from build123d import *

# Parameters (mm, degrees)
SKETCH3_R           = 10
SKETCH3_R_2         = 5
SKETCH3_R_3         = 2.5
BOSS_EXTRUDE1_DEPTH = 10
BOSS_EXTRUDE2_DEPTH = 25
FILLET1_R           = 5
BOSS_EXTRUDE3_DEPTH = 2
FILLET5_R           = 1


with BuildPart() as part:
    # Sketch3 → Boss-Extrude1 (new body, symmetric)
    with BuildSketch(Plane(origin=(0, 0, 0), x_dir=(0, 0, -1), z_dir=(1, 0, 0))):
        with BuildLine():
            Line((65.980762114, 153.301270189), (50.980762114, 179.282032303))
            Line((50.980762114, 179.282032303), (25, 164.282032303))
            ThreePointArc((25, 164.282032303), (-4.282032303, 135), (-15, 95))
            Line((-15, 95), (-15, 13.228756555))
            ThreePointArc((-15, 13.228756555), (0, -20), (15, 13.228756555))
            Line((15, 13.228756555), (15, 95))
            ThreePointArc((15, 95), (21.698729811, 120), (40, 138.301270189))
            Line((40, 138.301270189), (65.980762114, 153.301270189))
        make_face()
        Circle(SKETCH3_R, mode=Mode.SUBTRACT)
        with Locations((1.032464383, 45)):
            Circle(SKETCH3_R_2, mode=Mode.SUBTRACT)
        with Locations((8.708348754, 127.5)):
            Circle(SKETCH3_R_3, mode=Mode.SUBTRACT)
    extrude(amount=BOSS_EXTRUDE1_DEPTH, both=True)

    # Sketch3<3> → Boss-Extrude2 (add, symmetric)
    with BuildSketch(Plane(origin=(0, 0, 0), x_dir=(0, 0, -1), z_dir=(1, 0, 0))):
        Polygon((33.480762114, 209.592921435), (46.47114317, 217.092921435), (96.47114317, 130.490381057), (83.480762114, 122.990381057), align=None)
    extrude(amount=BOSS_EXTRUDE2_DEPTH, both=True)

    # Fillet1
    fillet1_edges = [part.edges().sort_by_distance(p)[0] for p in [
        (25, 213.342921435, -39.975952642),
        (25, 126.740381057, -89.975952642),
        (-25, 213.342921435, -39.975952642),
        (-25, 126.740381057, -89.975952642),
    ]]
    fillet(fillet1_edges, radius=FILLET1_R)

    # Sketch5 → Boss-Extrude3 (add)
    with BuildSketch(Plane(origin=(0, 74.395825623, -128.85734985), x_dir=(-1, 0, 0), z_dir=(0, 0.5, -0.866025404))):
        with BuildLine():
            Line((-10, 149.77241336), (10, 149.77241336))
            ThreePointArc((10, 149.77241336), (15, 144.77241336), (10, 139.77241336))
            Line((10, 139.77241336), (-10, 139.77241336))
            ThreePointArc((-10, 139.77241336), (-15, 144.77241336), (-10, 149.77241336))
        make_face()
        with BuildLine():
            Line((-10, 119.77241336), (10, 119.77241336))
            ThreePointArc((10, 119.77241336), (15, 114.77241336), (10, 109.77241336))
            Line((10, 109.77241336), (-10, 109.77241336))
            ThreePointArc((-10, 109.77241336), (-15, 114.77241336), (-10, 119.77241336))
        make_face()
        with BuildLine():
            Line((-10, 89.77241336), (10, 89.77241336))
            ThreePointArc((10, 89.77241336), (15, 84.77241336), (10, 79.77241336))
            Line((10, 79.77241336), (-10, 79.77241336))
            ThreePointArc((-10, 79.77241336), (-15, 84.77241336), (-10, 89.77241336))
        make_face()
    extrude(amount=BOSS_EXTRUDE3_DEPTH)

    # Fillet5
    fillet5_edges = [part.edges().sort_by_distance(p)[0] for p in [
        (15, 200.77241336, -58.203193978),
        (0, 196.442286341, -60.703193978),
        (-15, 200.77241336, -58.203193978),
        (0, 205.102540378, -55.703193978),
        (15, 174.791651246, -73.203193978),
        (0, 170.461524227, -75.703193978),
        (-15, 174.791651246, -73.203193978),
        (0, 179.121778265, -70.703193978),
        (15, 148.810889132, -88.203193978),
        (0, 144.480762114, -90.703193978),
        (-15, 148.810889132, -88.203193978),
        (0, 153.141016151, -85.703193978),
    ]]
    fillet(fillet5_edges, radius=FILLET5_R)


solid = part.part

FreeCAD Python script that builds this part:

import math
import FreeCAD as App
import Part
import Sketcher
Q = App.Units.Quantity


def edges_at(feature, points):
    """Names of the edges that pass closest to the given points."""
    edges = feature.Shape.Edges
    near = lambda p: min(range(len(edges)), key=lambda i: edges[i].distToShape(Part.Vertex(*p))[0])
    return sorted({f"Edge{near(p) + 1}" for p in points})

doc = App.newDocument("Part")
params = doc.addObject("Spreadsheet::Sheet", "Params")
for row, (alias, value) in enumerate([
    ("sketch1_diameter", "20 mm"),
    ("sketch1_diameter2", "10 mm"),
    ("sketch1_diameter3", "5 mm"),
    ("sketch1_radius", "80 mm"),
    ("sketch1_radius2", "20 mm"),
    ("pad1_length", "20 mm"),
    ("sketch2_length", "15 mm"),
    ("sketch2_length2", "100 mm"),
    ("pad2_length", "50 mm"),
    ("fillet_radius", "5 mm"),
    ("sketch3_radius", "5 mm"),
    ("sketch3_width", "20 mm"),
    ("pad3_length", "2 mm"),
    ("fillet2_radius", "1 mm"),
], start=1):
    params.set(f"A{row}", alias)
    params.set(f"B{row}", "=" + value)
    params.setAlias(f"B{row}", alias)

body = doc.addObject("PartDesign::Body", "Body")

sketch1 = body.newObject("Sketcher::SketchObject", "Sketch")
sketch1.AttachmentSupport = (doc.getObject("YZ_Plane"), [""])
sketch1.MapMode = "FlatFace"
sketch1.addGeometry(Part.LineSegment(App.Vector(153.3, -66, 0), App.Vector(179.3, -51, 0)), False)
sketch1.addGeometry(Part.LineSegment(App.Vector(179.3, -51, 0), App.Vector(164.3, -25, 0)), False)
sketch1.addGeometry(Part.ArcOfCircle(Part.Circle(App.Vector(95, -65, 0), App.Vector(0, 0, 1), 80), math.radians(30), math.radians(90)), False)
sketch1.addGeometry(Part.LineSegment(App.Vector(95, 15, 0), App.Vector(13.2, 15, 0)), False)
sketch1.addGeometry(Part.ArcOfCircle(Part.Circle(App.Vector(0, 0, 0), App.Vector(0, 0, 1), 20), math.radians(49), math.radians(311)), False)
sketch1.addGeometry(Part.LineSegment(App.Vector(13.2, -15, 0), App.Vector(95, -15, 0)), False)
sketch1.addGeometry(Part.ArcOfCircle(Part.Circle(App.Vector(95, -65, 0), App.Vector(0, 0, 1), 50), math.radians(30), math.radians(90)), False)
sketch1.addGeometry(Part.LineSegment(App.Vector(138.3, -40, 0), App.Vector(153.3, -66, 0)), False)
sketch1.addGeometry(Part.Circle(App.Vector(0, 0, 0), App.Vector(0, 0, 1), 10), False)
sketch1.addGeometry(Part.Circle(App.Vector(45, -1, 0), App.Vector(0, 0, 1), 5), False)
sketch1.addGeometry(Part.Circle(App.Vector(127.5, -8.7, 0), App.Vector(0, 0, 1), 2.5), False)
sketch1.addConstraint(Sketcher.Constraint("Coincident", 0, 2, 1, 1))
sketch1.addConstraint(Sketcher.Constraint("Tangent", 1, 2, 2, 1))
sketch1.addConstraint(Sketcher.Constraint("Tangent", 2, 2, 3, 1))
sketch1.addConstraint(Sketcher.Constraint("Coincident", 3, 2, 4, 1))
sketch1.addConstraint(Sketcher.Constraint("Coincident", 4, 2, 5, 1))
sketch1.addConstraint(Sketcher.Constraint("Tangent", 5, 2, 6, 2))
sketch1.addConstraint(Sketcher.Constraint("Tangent", 6, 1, 7, 1))
sketch1.addConstraint(Sketcher.Constraint("Coincident", 7, 2, 0, 1))
sketch1.addConstraint(Sketcher.Constraint("Horizontal", 3))
sketch1.addConstraint(Sketcher.Constraint("Horizontal", 5))
sketch1.addConstraint(Sketcher.Constraint("Coincident", 4, 3, -1, 1))
sketch1.addConstraint(Sketcher.Constraint("Coincident", 8, 3, -1, 1))
sketch1.addConstraint(Sketcher.Constraint("Coincident", 6, 3, 2, 3))
sketch1.addConstraint(Sketcher.Constraint("Perpendicular", 0, 1))
sketch1.addConstraint(Sketcher.Constraint("Parallel", 1, 7))
sketch1.addConstraint(Sketcher.Constraint("Vertical", 3, 2, 4, 2))
sketch1.addConstraint(Sketcher.Constraint("Equal", 0, 1))
sketch1.addConstraint(Sketcher.Constraint("Diameter", 8, 20.0))
sketch1.addConstraint(Sketcher.Constraint("Diameter", 9, 10.0))
sketch1.addConstraint(Sketcher.Constraint("Diameter", 10, 5.0))
sketch1.addConstraint(Sketcher.Constraint("Radius", 2, 80.0))
sketch1.addConstraint(Sketcher.Constraint("Radius", 4, 20.0))
sketch1.addConstraint(Sketcher.Constraint("Radius", 6, 50.0))
sketch1.addConstraint(Sketcher.Constraint("Angle", 0, Q("30 deg")))
sketch1.addConstraint(Sketcher.Constraint("DistanceX", -1, 1, 2, 3, 95.0))
sketch1.addConstraint(Sketcher.Constraint("DistanceX", -1, 1, 9, 3, 45.0))
sketch1.addConstraint(Sketcher.Constraint("DistanceX", -1, 1, 10, 3, 127.5))
sketch1.addConstraint(Sketcher.Constraint("DistanceY", 10, 3, -1, 1, 8.708349))
sketch1.addConstraint(Sketcher.Constraint("DistanceY", 9, 3, -1, 1, 1.032464))
sketch1.setExpression("Constraints[17]", "Params.sketch1_diameter")
sketch1.setExpression("Constraints[18]", "Params.sketch1_diameter2")
sketch1.setExpression("Constraints[19]", "Params.sketch1_diameter3")
sketch1.setExpression("Constraints[20]", "Params.sketch1_radius")
sketch1.setExpression("Constraints[21]", "Params.sketch1_radius2")
pad1 = body.newObject("PartDesign::Pad", "Pad")
pad1.Profile = sketch1
pad1.setExpression("Length", "Params.pad1_length")
pad1.Midplane = True

sketch2 = body.newObject("Sketcher::SketchObject", "Sketch001")
sketch2.AttachmentSupport = (doc.getObject("YZ_Plane"), [""])
sketch2.MapMode = "FlatFace"
sketch2.addGeometry(Part.LineSegment(App.Vector(217, -46, 0), App.Vector(210, -33, 0)), False)
sketch2.addGeometry(Part.LineSegment(App.Vector(210, -33, 0), App.Vector(123, -83, 0)), False)
sketch2.addGeometry(Part.LineSegment(App.Vector(123, -83, 0), App.Vector(130, -96, 0)), False)
sketch2.addGeometry(Part.LineSegment(App.Vector(130, -96, 0), App.Vector(217, -46, 0)), False)
sketch2.addConstraint(Sketcher.Constraint("Coincident", 0, 2, 1, 1))
sketch2.addConstraint(Sketcher.Constraint("Coincident", 1, 2, 2, 1))
sketch2.addConstraint(Sketcher.Constraint("Coincident", 2, 2, 3, 1))
sketch2.addConstraint(Sketcher.Constraint("Coincident", 3, 2, 0, 1))
sketch2.addConstraint(Sketcher.Constraint("Perpendicular", 0, 1))
sketch2.addConstraint(Sketcher.Constraint("Perpendicular", 1, 2))
sketch2.addConstraint(Sketcher.Constraint("Perpendicular", 2, 3))
sketch2.addConstraint(Sketcher.Constraint("Angle", 0, Q("120 deg")))
sketch2.addConstraint(Sketcher.Constraint("Distance", 0, 15.0))
sketch2.addConstraint(Sketcher.Constraint("Distance", 1, 100.0))
sketch2.addConstraint(Sketcher.Constraint("DistanceX", -1, 1, 0, 2, 209.592921))
sketch2.addConstraint(Sketcher.Constraint("DistanceY", 0, 2, -1, 1, 33.480762))
sketch2.setExpression("Constraints[8]", "Params.sketch2_length")
sketch2.setExpression("Constraints[9]", "Params.sketch2_length2")
pad2 = body.newObject("PartDesign::Pad", "Pad001")
pad2.Profile = sketch2
pad2.setExpression("Length", "Params.pad2_length")
pad2.Midplane = True
doc.recompute()

fillet = body.newObject("PartDesign::Fillet", "Fillet")
fillet.Base = (pad2, edges_at(pad2, [
    (25, 213.343, -39.976),
    (25, 126.74, -89.976),
    (-25, 213.343, -39.976),
    (-25, 126.74, -89.976),
]))
fillet.setExpression("Radius", "Params.fillet_radius")

sketch3 = body.newObject("Sketcher::SketchObject", "Sketch002")
sketch3.Placement = App.Placement(App.Vector(0, 74.395826, -128.85735), App.Rotation(App.Vector(-1, 0, 0), App.Vector(0, 0.866025404, 0.5), App.Vector(0, 0.5, -0.866025404), "ZXY"))
sketch3.addGeometry(Part.LineSegment(App.Vector(10, 150, 0), App.Vector(-10, 150, 0)), False)
sketch3.addGeometry(Part.ArcOfCircle(Part.Circle(App.Vector(-10, 145, 0), App.Vector(0, 0, 1), 5), math.radians(90), math.radians(270)), False)
sketch3.addGeometry(Part.LineSegment(App.Vector(-10, 140, 0), App.Vector(10, 140, 0)), False)
sketch3.addGeometry(Part.ArcOfCircle(Part.Circle(App.Vector(10, 145, 0), App.Vector(0, 0, 1), 5), math.radians(-90), math.radians(90)), False)
sketch3.addGeometry(Part.LineSegment(App.Vector(10, 120, 0), App.Vector(-10, 120, 0)), False)
sketch3.addGeometry(Part.ArcOfCircle(Part.Circle(App.Vector(-10, 115, 0), App.Vector(0, 0, 1), 5), math.radians(90), math.radians(270)), False)
sketch3.addGeometry(Part.LineSegment(App.Vector(-10, 110, 0), App.Vector(10, 110, 0)), False)
sketch3.addGeometry(Part.ArcOfCircle(Part.Circle(App.Vector(10, 115, 0), App.Vector(0, 0, 1), 5), math.radians(-90), math.radians(90)), False)
sketch3.addGeometry(Part.LineSegment(App.Vector(10, 90, 0), App.Vector(-10, 90, 0)), False)
sketch3.addGeometry(Part.ArcOfCircle(Part.Circle(App.Vector(-10, 85, 0), App.Vector(0, 0, 1), 5), math.radians(90), math.radians(270)), False)
sketch3.addGeometry(Part.LineSegment(App.Vector(-10, 80, 0), App.Vector(10, 80, 0)), False)
sketch3.addGeometry(Part.ArcOfCircle(Part.Circle(App.Vector(10, 85, 0), App.Vector(0, 0, 1), 5), math.radians(-90), math.radians(90)), False)
sketch3.addConstraint(Sketcher.Constraint("Tangent", 0, 2, 1, 1))
sketch3.addConstraint(Sketcher.Constraint("Tangent", 1, 2, 2, 1))
sketch3.addConstraint(Sketcher.Constraint("Tangent", 2, 2, 3, 1))
sketch3.addConstraint(Sketcher.Constraint("Tangent", 3, 2, 0, 1))
sketch3.addConstraint(Sketcher.Constraint("Tangent", 4, 2, 5, 1))
sketch3.addConstraint(Sketcher.Constraint("Tangent", 5, 2, 6, 1))
sketch3.addConstraint(Sketcher.Constraint("Tangent", 6, 2, 7, 1))
sketch3.addConstraint(Sketcher.Constraint("Tangent", 7, 2, 4, 1))
sketch3.addConstraint(Sketcher.Constraint("Tangent", 8, 2, 9, 1))
sketch3.addConstraint(Sketcher.Constraint("Tangent", 9, 2, 10, 1))
sketch3.addConstraint(Sketcher.Constraint("Tangent", 10, 2, 11, 1))
sketch3.addConstraint(Sketcher.Constraint("Tangent", 11, 2, 8, 1))
sketch3.addConstraint(Sketcher.Constraint("Horizontal", 0))
sketch3.addConstraint(Sketcher.Constraint("Horizontal", 2))
sketch3.addConstraint(Sketcher.Constraint("Horizontal", 4))
sketch3.addConstraint(Sketcher.Constraint("Horizontal", 6))
sketch3.addConstraint(Sketcher.Constraint("Horizontal", 8))
sketch3.addConstraint(Sketcher.Constraint("Horizontal", 10))
sketch3.addConstraint(Sketcher.Constraint("Equal", 3, 5))
sketch3.addConstraint(Sketcher.Constraint("Equal", 7, 9))
sketch3.addConstraint(Sketcher.Constraint("Vertical", 1, 3, 5, 3))
sketch3.addConstraint(Sketcher.Constraint("Vertical", 3, 3, 7, 3))
sketch3.addConstraint(Sketcher.Constraint("Vertical", 5, 3, 9, 3))
sketch3.addConstraint(Sketcher.Constraint("Vertical", 7, 3, 11, 3))
sketch3.addConstraint(Sketcher.Constraint("Radius", 1, 5.0))
sketch3.addConstraint(Sketcher.Constraint("DistanceX", 0, 2, 0, 1, 20.0))
sketch3.addConstraint(Sketcher.Constraint("DistanceX", 1, 3, -1, 1, 10.0))
sketch3.addConstraint(Sketcher.Constraint("DistanceY", 5, 3, 1, 3, 30.0))
sketch3.addConstraint(Sketcher.Constraint("DistanceY", 9, 3, 5, 3, 30.0))
sketch3.addConstraint(Sketcher.Constraint("DistanceY", -1, 1, 1, 3, 144.772413))
sketch3.setExpression("Constraints[24]", "Params.sketch3_radius")
sketch3.setExpression("Constraints[25]", "Params.sketch3_width")
pad3 = body.newObject("PartDesign::Pad", "Pad002")
pad3.Profile = sketch3
pad3.setExpression("Length", "Params.pad3_length")
doc.recompute()

fillet2 = body.newObject("PartDesign::Fillet", "Fillet001")
fillet2.Base = (pad3, edges_at(pad3, [
    (15, 200.772, -58.203),
    (0, 196.442, -60.703),
    (-15, 200.772, -58.203),
    (0, 205.103, -55.703),
    (15, 174.792, -73.203),
    (0, 170.462, -75.703),
    (-15, 174.792, -73.203),
    (0, 179.122, -70.703),
    (15, 148.811, -88.203),
    (0, 144.481, -90.703),
    (-15, 148.811, -88.203),
    (0, 153.141, -85.703),
]))
fillet2.setExpression("Radius", "Params.fillet2_radius")

doc.recompute()
